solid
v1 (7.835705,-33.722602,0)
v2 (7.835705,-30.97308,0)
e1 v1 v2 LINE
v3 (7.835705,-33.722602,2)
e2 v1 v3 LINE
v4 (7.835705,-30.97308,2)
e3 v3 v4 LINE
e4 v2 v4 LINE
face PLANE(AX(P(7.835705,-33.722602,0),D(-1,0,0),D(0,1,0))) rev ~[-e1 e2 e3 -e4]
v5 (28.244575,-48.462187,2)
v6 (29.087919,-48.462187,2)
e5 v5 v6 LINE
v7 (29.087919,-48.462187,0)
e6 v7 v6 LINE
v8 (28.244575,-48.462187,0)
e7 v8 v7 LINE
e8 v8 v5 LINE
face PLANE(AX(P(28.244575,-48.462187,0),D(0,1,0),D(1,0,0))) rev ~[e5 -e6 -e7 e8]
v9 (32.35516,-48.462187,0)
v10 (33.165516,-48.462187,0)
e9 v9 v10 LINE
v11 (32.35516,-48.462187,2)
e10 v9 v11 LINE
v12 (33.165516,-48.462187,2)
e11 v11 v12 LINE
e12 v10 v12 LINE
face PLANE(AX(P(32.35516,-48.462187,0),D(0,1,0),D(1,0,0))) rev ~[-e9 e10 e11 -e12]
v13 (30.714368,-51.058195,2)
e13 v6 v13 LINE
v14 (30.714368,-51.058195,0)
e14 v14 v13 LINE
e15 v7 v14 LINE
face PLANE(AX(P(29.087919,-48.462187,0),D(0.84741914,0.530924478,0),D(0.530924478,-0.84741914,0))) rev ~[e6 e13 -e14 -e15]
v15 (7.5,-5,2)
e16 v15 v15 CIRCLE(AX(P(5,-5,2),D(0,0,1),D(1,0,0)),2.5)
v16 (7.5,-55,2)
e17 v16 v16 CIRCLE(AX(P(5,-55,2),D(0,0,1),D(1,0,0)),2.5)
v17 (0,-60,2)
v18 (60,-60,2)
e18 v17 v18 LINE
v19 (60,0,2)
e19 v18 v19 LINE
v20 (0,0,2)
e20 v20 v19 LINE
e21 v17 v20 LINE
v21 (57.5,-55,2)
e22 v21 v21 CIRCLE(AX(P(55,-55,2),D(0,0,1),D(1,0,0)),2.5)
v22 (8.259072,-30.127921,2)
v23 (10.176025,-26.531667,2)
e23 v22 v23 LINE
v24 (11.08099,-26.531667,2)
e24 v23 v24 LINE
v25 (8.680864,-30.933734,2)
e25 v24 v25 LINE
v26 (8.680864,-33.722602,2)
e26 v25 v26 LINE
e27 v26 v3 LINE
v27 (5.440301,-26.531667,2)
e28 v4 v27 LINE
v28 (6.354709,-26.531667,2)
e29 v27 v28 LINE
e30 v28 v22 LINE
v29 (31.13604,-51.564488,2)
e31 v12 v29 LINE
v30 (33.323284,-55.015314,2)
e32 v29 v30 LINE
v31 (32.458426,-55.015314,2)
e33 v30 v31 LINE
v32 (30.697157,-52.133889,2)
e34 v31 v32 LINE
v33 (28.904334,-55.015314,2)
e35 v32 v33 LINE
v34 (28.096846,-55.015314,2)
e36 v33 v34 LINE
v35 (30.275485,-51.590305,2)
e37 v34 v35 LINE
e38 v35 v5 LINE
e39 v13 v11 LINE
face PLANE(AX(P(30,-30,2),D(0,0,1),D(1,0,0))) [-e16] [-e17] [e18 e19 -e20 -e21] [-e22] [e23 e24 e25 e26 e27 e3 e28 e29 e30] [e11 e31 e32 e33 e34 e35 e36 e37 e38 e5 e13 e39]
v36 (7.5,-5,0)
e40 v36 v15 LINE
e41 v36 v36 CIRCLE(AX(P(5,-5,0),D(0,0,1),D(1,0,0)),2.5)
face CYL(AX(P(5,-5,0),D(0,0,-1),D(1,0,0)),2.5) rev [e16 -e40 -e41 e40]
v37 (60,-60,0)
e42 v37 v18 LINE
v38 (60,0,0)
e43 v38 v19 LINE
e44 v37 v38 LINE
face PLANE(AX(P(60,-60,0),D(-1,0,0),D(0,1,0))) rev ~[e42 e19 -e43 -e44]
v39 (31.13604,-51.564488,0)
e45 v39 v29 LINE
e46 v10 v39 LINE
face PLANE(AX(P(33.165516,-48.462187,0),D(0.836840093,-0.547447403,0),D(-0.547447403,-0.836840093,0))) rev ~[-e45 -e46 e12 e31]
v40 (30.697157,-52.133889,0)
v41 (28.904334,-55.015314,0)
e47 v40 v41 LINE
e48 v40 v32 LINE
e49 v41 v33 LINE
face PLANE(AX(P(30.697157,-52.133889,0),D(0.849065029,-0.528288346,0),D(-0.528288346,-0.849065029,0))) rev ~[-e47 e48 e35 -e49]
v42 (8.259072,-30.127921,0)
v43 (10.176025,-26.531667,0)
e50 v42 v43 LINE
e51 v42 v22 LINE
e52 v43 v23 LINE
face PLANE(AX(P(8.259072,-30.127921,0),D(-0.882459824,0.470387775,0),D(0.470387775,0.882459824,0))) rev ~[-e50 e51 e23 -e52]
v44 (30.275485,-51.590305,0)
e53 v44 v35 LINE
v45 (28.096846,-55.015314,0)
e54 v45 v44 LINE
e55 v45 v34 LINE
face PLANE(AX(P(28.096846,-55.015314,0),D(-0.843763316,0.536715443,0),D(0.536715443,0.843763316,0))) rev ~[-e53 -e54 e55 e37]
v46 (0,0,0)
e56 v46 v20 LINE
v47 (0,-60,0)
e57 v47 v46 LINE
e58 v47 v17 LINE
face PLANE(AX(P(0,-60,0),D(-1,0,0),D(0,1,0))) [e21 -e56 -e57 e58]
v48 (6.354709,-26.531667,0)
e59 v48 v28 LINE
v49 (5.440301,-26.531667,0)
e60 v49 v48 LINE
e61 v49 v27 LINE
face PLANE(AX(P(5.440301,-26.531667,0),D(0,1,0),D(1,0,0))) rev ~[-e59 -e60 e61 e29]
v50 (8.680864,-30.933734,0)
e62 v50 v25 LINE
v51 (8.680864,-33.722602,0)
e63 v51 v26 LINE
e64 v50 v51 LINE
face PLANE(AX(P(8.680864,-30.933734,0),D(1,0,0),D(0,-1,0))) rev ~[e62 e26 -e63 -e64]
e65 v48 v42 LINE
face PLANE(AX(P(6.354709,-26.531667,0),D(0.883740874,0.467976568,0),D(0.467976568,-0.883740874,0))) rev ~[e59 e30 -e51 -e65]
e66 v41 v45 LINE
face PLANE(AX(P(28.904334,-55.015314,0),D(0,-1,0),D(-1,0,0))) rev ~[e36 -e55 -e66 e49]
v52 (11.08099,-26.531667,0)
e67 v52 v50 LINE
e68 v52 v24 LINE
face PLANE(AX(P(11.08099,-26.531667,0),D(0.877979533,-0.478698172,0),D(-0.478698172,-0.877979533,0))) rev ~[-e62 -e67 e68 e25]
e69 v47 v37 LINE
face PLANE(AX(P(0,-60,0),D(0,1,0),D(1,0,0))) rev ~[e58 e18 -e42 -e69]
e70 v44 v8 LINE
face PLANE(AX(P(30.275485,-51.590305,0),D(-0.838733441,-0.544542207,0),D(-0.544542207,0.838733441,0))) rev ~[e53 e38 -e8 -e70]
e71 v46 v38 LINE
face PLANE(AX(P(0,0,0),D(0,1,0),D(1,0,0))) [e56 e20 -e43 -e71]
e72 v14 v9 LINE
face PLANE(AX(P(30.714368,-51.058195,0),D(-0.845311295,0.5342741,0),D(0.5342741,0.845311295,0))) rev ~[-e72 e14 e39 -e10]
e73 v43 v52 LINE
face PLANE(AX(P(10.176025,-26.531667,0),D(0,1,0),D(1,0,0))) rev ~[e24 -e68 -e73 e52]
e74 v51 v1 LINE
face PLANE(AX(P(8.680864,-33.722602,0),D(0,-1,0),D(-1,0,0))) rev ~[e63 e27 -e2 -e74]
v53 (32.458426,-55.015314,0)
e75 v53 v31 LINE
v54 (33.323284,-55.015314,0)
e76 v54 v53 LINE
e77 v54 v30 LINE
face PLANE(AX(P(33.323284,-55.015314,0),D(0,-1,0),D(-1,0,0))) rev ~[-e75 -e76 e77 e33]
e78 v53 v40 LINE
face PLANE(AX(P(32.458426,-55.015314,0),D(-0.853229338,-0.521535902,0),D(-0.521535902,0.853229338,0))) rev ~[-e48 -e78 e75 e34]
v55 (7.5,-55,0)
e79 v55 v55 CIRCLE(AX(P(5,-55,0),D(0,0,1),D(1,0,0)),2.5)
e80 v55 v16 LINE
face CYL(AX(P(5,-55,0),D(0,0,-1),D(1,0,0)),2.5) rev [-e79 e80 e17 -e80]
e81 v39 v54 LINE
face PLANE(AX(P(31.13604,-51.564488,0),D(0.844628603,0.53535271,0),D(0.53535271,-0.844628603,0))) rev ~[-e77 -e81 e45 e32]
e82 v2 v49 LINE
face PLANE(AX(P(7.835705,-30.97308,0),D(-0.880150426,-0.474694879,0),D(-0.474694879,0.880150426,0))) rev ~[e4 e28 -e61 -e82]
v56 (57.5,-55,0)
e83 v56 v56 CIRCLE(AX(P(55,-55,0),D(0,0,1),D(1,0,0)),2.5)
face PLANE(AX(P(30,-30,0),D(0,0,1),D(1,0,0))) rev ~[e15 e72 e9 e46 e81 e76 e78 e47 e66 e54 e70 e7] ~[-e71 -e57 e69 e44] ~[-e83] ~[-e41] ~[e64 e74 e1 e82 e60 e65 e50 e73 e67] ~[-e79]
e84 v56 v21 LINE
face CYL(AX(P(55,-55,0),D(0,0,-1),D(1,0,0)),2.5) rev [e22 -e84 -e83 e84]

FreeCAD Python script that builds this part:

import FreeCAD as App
import Part
import Sketcher


def add_polygon(sketch, points):
    """Adds a closed chain of lines whose ends are joined by coincident constraints."""
    first, n = sketch.GeometryCount, len(points)
    for a, b in zip(points, points[1:] + points[:1]):
        sketch.addGeometry(Part.LineSegment(App.Vector(*a, 0), App.Vector(*b, 0)), False)
    for i in range(n):
        sketch.addConstraint(Sketcher.Constraint("Coincident", first + i, 2, first + (i + 1) % n, 1))

doc = App.newDocument("Part")
body = doc.addObject("PartDesign::Body", "Body")

# Sketch on XY plane
sketch1 = body.newObject("Sketcher::SketchObject", "Sketch")
sketch1.AttachmentSupport = (doc.getObject("XY_Plane"), [""])
sketch1.MapMode = "FlatFace"
add_polygon(sketch1, [(0, 0), (0, -60), (60, -60), (60, 0)])  # lines 0-3
sketch1.addGeometry(Part.Circle(App.Vector(5, -55, 0), App.Vector(0, 0, 1), 2.5), False)  # 4
add_polygon(sketch1, [(5.4, -26.5), (6.4, -26.5), (8.3, -30.1), (10.2, -26.5), (11.1, -26.5), (8.7, -30.9), (8.7, -33.7), (7.8, -33.7), (7.8, -31)])  # lines 5-13
add_polygon(sketch1, [(33.2, -48.5), (31.1, -51.6), (33.3, -55), (32.5, -55), (30.7, -52.1), (28.9, -55), (28.1, -55), (30.3, -51.6), (28.2, -48.5), (29.1, -48.5), (30.7, -51.1), (32.4, -48.5)])  # lines 14-25
sketch1.addGeometry(Part.Circle(App.Vector(55, -55, 0), App.Vector(0, 0, 1), 2.5), False)  # 26
sketch1.addGeometry(Part.Circle(App.Vector(5, -5, 0), App.Vector(0, 0, 1), 2.5), False)  # 27
sketch1.addConstraint(Sketcher.Constraint("Vertical", 0))
sketch1.addConstraint(Sketcher.Constraint("Horizontal", 1))
sketch1.addConstraint(Sketcher.Constraint("Vertical", 2))
sketch1.addConstraint(Sketcher.Constraint("Horizontal", 3))
sketch1.addConstraint(Sketcher.Constraint("Horizontal", 5))
sketch1.addConstraint(Sketcher.Constraint("Horizontal", 8))
sketch1.addConstraint(Sketcher.Constraint("Vertical", 10))
sketch1.addConstraint(Sketcher.Constraint("Horizontal", 11))
sketch1.addConstraint(Sketcher.Constraint("Vertical", 12))
sketch1.addConstraint(Sketcher.Constraint("Horizontal", 16))
sketch1.addConstraint(Sketcher.Constraint("Horizontal", 19))
sketch1.addConstraint(Sketcher.Constraint("Horizontal", 22))
sketch1.addConstraint(Sketcher.Constraint("Horizontal", 25))
sketch1.addConstraint(Sketcher.Constraint("Coincident", 3, 2, -1, 1))
sketch1.addConstraint(Sketcher.Constraint("Equal", 4, 26))
sketch1.addConstraint(Sketcher.Constraint("Equal", 26, 27))
sketch1.addConstraint(Sketcher.Constraint("Horizontal", 4, 3, 26, 3))
sketch1.addConstraint(Sketcher.Constraint("Horizontal", 5, 2, 7, 2))
sketch1.addConstraint(Sketcher.Constraint("Horizontal", 16, 2, 18, 2))
sketch1.addConstraint(Sketcher.Constraint("Horizontal", 22, 2, 24, 2))
sketch1.addConstraint(Sketcher.Constraint("Vertical", 4, 3, 27, 3))
sketch1.addConstraint(Sketcher.Constraint("Equal", 3, 0))
sketch1.addConstraint(Sketcher.Constraint("Diameter", 4, 5.0))
sketch1.addConstraint(Sketcher.Constraint("DistanceX", 1, 1, 1, 2, 60.0))
sketch1.addConstraint(Sketcher.Constraint("DistanceX", -1, 1, 4, 3, 5.0))
sketch1.addConstraint(Sketcher.Constraint("DistanceY", 4, 3, -1, 1, 55.0))
sketch1.addConstraint(Sketcher.Constraint("DistanceX", -1, 1, 26, 3, 55.0))
sketch1.addConstraint(Sketcher.Constraint("DistanceY", 27, 3, -1, 1, 5.0))
sketch1.addConstraint(Sketcher.Constraint("Distance", 13, 5.046198))
sketch1.addConstraint(Sketcher.Constraint("DistanceX", 5, 1, 5, 2, 0.914409))
sketch1.addConstraint(Sketcher.Constraint("DistanceX", 11, 2, 11, 1, 0.845159))
sketch1.addConstraint(Sketcher.Constraint("DistanceY", 12, 1, 12, 2, 2.749521))
sketch1.addConstraint(Sketcher.Constraint("DistanceY", 10, 2, -1, 1, 33.722602))
sketch1.addConstraint(Sketcher.Constraint("DistanceX", -1, 1, 13, 2, 5.440301))
sketch1.addConstraint(Sketcher.Constraint("DistanceY", 17, 2, 14, 2, 0.569401))
sketch1.addConstraint(Sketcher.Constraint("DistanceY", 14, 2, 21, 2, 3.102301))
sketch1.addConstraint(Sketcher.Constraint("Distance", 7, 4.075261))
sketch1.addConstraint(Sketcher.Constraint("Distance", 9, 5.013861))
sketch1.addConstraint(Sketcher.Constraint("Distance", 14, 3.707161))
sketch1.addConstraint(Sketcher.Constraint("Distance", 23, 3.063429))
sketch1.addConstraint(Sketcher.Constraint("DistanceX", 8, 1, 8, 2, 0.904966))
sketch1.addConstraint(Sketcher.Constraint("DistanceX", 16, 2, 16, 1, 0.864858))
sketch1.addConstraint(Sketcher.Constraint("DistanceX", 19, 2, 19, 1, 0.807488))
sketch1.addConstraint(Sketcher.Constraint("DistanceX", 22, 1, 22, 2, 0.843344))
sketch1.addConstraint(Sketcher.Constraint("DistanceX", 25, 1, 25, 2, 0.810356))
sketch1.addConstraint(Sketcher.Constraint("DistanceY", 10, 2, 10, 1, 2.788868))
sketch1.addConstraint(Sketcher.Constraint("DistanceX", -1, 1, 6, 2, 8.259072))
sketch1.addConstraint(Sketcher.Constraint("DistanceY", 6, 2, -1, 1, 30.127921))
sketch1.addConstraint(Sketcher.Constraint("DistanceX", -1, 1, 14, 2, 31.13604))
sketch1.addConstraint(Sketcher.Constraint("DistanceY", 14, 2, -1, 1, 51.564488))
sketch1.addConstraint(Sketcher.Constraint("DistanceX", -1, 1, 22, 2, 29.087919))
sketch1.addConstraint(Sketcher.Constraint("DistanceX", 10, 2, 15, 2, 24.64242))
sketch1.addConstraint(Sketcher.Constraint("DistanceX", 17, 2, 16, 2, 1.76127))
sketch1.addConstraint(Sketcher.Constraint("DistanceX", 18, 2, 15, 2, 4.418951))
sketch1.addConstraint(Sketcher.Constraint("DistanceX", 18, 2, 20, 2, 1.371151))
sketch1.addConstraint(Sketcher.Constraint("DistanceY", 18, 2, 20, 2, 3.42501))
sketch1.addConstraint(Sketcher.Constraint("DistanceY", 20, 2, 23, 2, 0.53211))
sketch1.addConstraint(Sketcher.Constraint("DistanceX", 17, 2, 23, 2, 0.017211))
pad1 = body.newObject("PartDesign::Pad", "Pad")
pad1.Profile = sketch1
pad1.Length = 2

doc.recompute()
